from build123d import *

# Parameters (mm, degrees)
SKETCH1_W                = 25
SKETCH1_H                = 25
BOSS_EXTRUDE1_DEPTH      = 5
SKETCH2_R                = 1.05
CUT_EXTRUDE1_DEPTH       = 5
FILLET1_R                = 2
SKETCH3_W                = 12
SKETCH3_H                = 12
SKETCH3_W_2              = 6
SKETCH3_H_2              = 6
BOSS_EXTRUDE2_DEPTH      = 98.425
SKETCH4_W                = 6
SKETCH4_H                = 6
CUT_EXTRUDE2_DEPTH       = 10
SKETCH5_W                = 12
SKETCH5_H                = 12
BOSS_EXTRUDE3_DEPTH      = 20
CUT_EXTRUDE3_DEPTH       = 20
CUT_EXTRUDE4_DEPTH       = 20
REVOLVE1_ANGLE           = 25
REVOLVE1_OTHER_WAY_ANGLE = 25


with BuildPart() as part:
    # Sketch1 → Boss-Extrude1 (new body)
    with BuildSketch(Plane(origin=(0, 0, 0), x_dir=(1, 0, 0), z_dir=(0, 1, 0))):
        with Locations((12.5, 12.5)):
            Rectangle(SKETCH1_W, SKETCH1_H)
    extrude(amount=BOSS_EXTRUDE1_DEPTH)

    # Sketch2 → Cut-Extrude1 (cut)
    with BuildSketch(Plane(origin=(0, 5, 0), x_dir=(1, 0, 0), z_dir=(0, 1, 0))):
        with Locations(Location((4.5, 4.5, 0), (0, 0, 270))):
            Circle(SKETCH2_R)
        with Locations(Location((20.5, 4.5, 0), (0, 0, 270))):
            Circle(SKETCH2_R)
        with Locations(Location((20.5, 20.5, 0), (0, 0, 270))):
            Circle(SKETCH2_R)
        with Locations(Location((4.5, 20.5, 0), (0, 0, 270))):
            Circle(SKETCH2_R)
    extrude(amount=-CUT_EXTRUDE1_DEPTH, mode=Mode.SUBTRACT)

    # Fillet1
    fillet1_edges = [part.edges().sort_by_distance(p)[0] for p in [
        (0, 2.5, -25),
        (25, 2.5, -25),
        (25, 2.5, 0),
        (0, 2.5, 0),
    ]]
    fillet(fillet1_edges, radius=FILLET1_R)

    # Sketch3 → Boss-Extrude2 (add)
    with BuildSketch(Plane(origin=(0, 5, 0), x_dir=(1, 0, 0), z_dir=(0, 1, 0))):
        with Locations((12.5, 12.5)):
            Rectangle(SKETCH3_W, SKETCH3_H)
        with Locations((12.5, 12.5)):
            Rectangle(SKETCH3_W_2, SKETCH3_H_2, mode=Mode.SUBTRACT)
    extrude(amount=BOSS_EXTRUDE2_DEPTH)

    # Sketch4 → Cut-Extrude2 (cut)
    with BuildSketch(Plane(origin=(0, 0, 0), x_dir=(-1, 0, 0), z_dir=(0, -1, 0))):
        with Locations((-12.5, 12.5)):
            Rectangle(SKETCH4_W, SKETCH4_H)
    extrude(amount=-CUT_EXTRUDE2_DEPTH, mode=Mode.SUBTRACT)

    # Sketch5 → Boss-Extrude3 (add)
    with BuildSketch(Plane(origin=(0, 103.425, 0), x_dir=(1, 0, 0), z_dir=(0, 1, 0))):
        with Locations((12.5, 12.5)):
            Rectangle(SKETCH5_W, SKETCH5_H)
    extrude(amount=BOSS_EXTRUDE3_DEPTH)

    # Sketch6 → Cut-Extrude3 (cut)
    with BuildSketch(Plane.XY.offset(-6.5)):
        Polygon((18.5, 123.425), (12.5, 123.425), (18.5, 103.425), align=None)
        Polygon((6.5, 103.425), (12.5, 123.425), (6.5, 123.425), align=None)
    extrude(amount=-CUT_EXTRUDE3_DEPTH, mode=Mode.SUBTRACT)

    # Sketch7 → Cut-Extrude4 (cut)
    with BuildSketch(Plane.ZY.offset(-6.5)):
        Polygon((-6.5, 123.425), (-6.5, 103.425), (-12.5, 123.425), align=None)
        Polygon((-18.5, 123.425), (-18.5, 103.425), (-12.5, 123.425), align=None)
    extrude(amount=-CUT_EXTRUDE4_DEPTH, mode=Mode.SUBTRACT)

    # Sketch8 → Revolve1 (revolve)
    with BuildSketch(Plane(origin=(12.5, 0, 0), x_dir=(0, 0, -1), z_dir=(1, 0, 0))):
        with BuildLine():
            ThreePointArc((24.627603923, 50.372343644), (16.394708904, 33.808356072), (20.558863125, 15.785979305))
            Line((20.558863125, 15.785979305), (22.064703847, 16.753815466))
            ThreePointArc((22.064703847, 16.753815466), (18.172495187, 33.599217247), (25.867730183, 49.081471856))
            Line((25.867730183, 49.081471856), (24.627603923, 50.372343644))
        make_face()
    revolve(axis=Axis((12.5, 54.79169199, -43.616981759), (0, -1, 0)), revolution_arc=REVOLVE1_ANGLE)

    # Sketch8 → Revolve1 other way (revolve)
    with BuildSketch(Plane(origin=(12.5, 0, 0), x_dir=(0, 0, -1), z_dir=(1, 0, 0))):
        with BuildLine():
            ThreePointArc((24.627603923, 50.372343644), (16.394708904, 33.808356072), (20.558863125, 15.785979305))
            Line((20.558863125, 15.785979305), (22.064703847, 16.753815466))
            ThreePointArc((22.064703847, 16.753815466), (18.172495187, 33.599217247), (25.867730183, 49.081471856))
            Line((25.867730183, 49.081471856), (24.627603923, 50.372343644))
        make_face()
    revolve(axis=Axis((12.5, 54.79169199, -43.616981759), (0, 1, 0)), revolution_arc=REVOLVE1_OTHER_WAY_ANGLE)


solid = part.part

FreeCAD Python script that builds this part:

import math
import FreeCAD as App
import Part
import Sketcher
from FreeCAD import Vector
Q = App.Units.Quantity


def edges_at(feature, points):
    """Names of the edges that pass closest to the given points."""
    edges = feature.Shape.Edges
    near = lambda p: min(range(len(edges)), key=lambda i: edges[i].distToShape(Part.Vertex(*p))[0])
    return sorted({f"Edge{near(p) + 1}" for p in points})

doc = App.newDocument("Part")
body = doc.addObject("PartDesign::Body", "Body")

# Sketch on XZ plane
sketch1 = doc.addObject("Sketcher::SketchObject", "Sketch")
body.addObject(sketch1)
sketch1.AttachmentSupport = (doc.XZ_Plane, [""])
sketch1.MapMode = "FlatFace"
sketch1.addGeometry([
    Part.LineSegment(Vector(0, -25, 0), Vector(0, 0, 0)),
    Part.LineSegment(Vector(0, 0, 0), Vector(25, 0, 0)),
    Part.LineSegment(Vector(25, 0, 0), Vector(25, -25, 0)),
    Part.LineSegment(Vector(25, -25, 0), Vector(0, -25, 0)),
], False)
sketch1.addConstraint([
    Sketcher.Constraint("Coincident", 0, 2, 1, 1),
    Sketcher.Constraint("Coincident", 1, 2, 2, 1),
    Sketcher.Constraint("Coincident", 2, 2, 3, 1),
    Sketcher.Constraint("Coincident", 3, 2, 0, 1),
    Sketcher.Constraint("Vertical", 0),
    Sketcher.Constraint("Horizontal", 1),
    Sketcher.Constraint("Vertical", 2),
    Sketcher.Constraint("Horizontal", 3),
    Sketcher.Constraint("Coincident", 0, 2, -1, 1),
    Sketcher.Constraint("Equal", 3, 0),
    Sketcher.Constraint("DistanceX", 1, 1, 1, 2, Q("25 mm")),
])
pad1 = doc.addObject("PartDesign::Pad", "Pad")
body.addObject(pad1)
pad1.Profile = sketch1
pad1.Length = 5
pad1.Reversed = True

# Sketch on XZ plane
sketch2 = doc.addObject("Sketcher::SketchObject", "Sketch001")
body.addObject(sketch2)
sketch2.AttachmentSupport = (doc.XZ_Plane, [""])
sketch2.MapMode = "FlatFace"
sketch2.AttachmentOffset = App.Placement(Vector(0, 0, -5), App.Rotation())
sketch2.addGeometry([
    Part.Circle(Vector(4.5, -4.5, 0), Vector(0, 0, 1), 1.1),
    Part.Circle(Vector(20.5, -4.5, 0), Vector(0, 0, 1), 1.1),
    Part.Circle(Vector(20.5, -20.5, 0), Vector(0, 0, 1), 1.1),
    Part.Circle(Vector(4.5, -20.5, 0), Vector(0, 0, 1), 1.1),
], False)
sketch2.addConstraint([
    Sketcher.Constraint("Equal", 0, 1),
    Sketcher.Constraint("Equal", 1, 2),
    Sketcher.Constraint("Equal", 2, 3),
    Sketcher.Constraint("Horizontal", 0, 3, 1, 3),
    Sketcher.Constraint("Horizontal", 2, 3, 3, 3),
    Sketcher.Constraint("Vertical", 1, 3, 2, 3),
    Sketcher.Constraint("Vertical", 0, 3, 3, 3),
    Sketcher.Constraint("Diameter", 0, Q("2.1 mm")),
    Sketcher.Constraint("DistanceX", 0, 3, 1, 3, Q("16 mm")),
    Sketcher.Constraint("DistanceY", 2, 3, 1, 3, Q("16 mm")),
    Sketcher.Constraint("DistanceX", -1, 1, 0, 3, Q("4.5 mm")),
    Sketcher.Constraint("DistanceY", 0, 3, -1, 1, Q("4.5 mm")),
])
pocket1 = doc.addObject("PartDesign::Pocket", "Pocket")
body.addObject(pocket1)
pocket1.Profile = sketch2
pocket1.Length = 5
pocket1.Reversed = True
doc.recompute()

fillet = doc.addObject("PartDesign::Fillet", "Fillet")
body.addObject(fillet)
fillet.Base = (pocket1, edges_at(pocket1, [
    (0, 2.5, -25),
    (25, 2.5, -25),
    (25, 2.5, 0),
    (0, 2.5, 0),
]))
fillet.Radius = 2

# Sketch on XZ plane
sketch3 = doc.addObject("Sketcher::SketchObject", "Sketch002")
body.addObject(sketch3)
sketch3.AttachmentSupport = (doc.XZ_Plane, [""])
sketch3.MapMode = "FlatFace"
sketch3.AttachmentOffset = App.Placement(Vector(0, 0, -5), App.Rotation())
sketch3.addGeometry([
    Part.LineSegment(Vector(6, -18, 0), Vector(6, -6, 0)),  # 0
    Part.LineSegment(Vector(6, -6, 0), Vector(18, -6, 0)),  # 1
    Part.LineSegment(Vector(18, -6, 0), Vector(18, -18, 0)),  # 2
    Part.LineSegment(Vector(18, -18, 0), Vector(6, -18, 0)),  # 3
    Part.LineSegment(Vector(16, -10, 0), Vector(10, -10, 0)),  # 4
    Part.LineSegment(Vector(10, -10, 0), Vector(10, -16, 0)),  # 5
    Part.LineSegment(Vector(10, -16, 0), Vector(16, -16, 0)),  # 6
    Part.LineSegment(Vector(16, -16, 0), Vector(16, -10, 0)),  # 7
], False)
sketch3.addConstraint([
    Sketcher.Constraint("Coincident", 0, 2, 1, 1),
    Sketcher.Constraint("Coincident", 1, 2, 2, 1),
    Sketcher.Constraint("Coincident", 2, 2, 3, 1),
    Sketcher.Constraint("Coincident", 3, 2, 0, 1),
    Sketcher.Constraint("Coincident", 4, 2, 5, 1),
    Sketcher.Constraint("Coincident", 5, 2, 6, 1),
    Sketcher.Constraint("Coincident", 6, 2, 7, 1),
    Sketcher.Constraint("Coincident", 7, 2, 4, 1),
    Sketcher.Constraint("Vertical", 0),
    Sketcher.Constraint("Horizontal", 1),
    Sketcher.Constraint("Vertical", 2),
    Sketcher.Constraint("Horizontal", 3),
    Sketcher.Constraint("Horizontal", 4),
    Sketcher.Constraint("Vertical", 5),
    Sketcher.Constraint("Horizontal", 6),
    Sketcher.Constraint("Vertical", 7),
    Sketcher.Constraint("Equal", 3, 0),
    Sketcher.Constraint("Equal", 6, 5),
    Sketcher.Constraint("DistanceX", 1, 1, 1, 2, Q("12 mm")),
    Sketcher.Constraint("DistanceX", 4, 2, 4, 1, Q("6 mm")),
    Sketcher.Constraint("DistanceX", 0, 2, 4, 2, Q("3 mm")),
    Sketcher.Constraint("DistanceY", 4, 2, 0, 2, Q("3 mm")),
    Sketcher.Constraint("DistanceX", -1, 1, 0, 2, Q("6.5 mm")),
    Sketcher.Constraint("DistanceY", 0, 2, -1, 1, Q("6.5 mm")),
])
pad2 = doc.addObject("PartDesign::Pad", "Pad001")
body.addObject(pad2)
pad2.Profile = sketch3
pad2.Length = 98.425
pad2.Reversed = True

# Sketch on XZ plane
sketch4 = doc.addObject("Sketcher::SketchObject", "Sketch003")
body.addObject(sketch4)
sketch4.AttachmentSupport = (doc.XZ_Plane, [""])
sketch4.MapMode = "FlatFace"
sketch4.addGeometry([
    Part.LineSegment(Vector(16, -16, 0), Vector(16, -10, 0)),
    Part.LineSegment(Vector(16, -10, 0), Vector(10, -10, 0)),
    Part.LineSegment(Vector(10, -10, 0), Vector(10, -16, 0)),
    Part.LineSegment(Vector(10, -16, 0), Vector(16, -16, 0)),
], False)
sketch4.addConstraint([
    Sketcher.Constraint("Coincident", 0, 2, 1, 1),
    Sketcher.Constraint("Coincident", 1, 2, 2, 1),
    Sketcher.Constraint("Coincident", 2, 2, 3, 1),
    Sketcher.Constraint("Coincident", 3, 2, 0, 1),
    Sketcher.Constraint("Vertical", 0),
    Sketcher.Constraint("Horizontal", 1),
    Sketcher.Constraint("Vertical", 2),
    Sketcher.Constraint("Horizontal", 3),
    Sketcher.Constraint("Equal", 3, 0),
    Sketcher.Constraint("DistanceX", 1, 2, 1, 1, Q("6 mm")),
    Sketcher.Constraint("DistanceX", -1, 1, 0, 2, Q("15.5 mm")),
    Sketcher.Constraint("DistanceY", 0, 2, -1, 1, Q("9.5 mm")),
])
pocket2 = doc.addObject("PartDesign::Pocket", "Pocket001")
body.addObject(pocket2)
pocket2.Profile = sketch4
pocket2.Length = 10

# Sketch on XZ plane
sketch5 = doc.addObject("Sketcher::SketchObject", "Sketch004")
body.addObject(sketch5)
sketch5.AttachmentSupport = (doc.XZ_Plane, [""])
sketch5.MapMode = "FlatFace"
sketch5.AttachmentOffset = App.Placement(Vector(0, 0, -103.425), App.Rotation())
sketch5.addGeometry([
    Part.LineSegment(Vector(6, -18, 0), Vector(6, -6, 0)),
    Part.LineSegment(Vector(6, -6, 0), Vector(18, -6, 0)),
    Part.LineSegment(Vector(18, -6, 0), Vector(18, -18, 0)),
    Part.LineSegment(Vector(18, -18, 0), Vector(6, -18, 0)),
], False)
sketch5.addConstraint([
    Sketcher.Constraint("Coincident", 0, 2, 1, 1),
    Sketcher.Constraint("Coincident", 1, 2, 2, 1),
    Sketcher.Constraint("Coincident", 2, 2, 3, 1),
    Sketcher.Constraint("Coincident", 3, 2, 0, 1),
    Sketcher.Constraint("Vertical", 0),
    Sketcher.Constraint("Horizontal", 1),
    Sketcher.Constraint("Vertical", 2),
    Sketcher.Constraint("Horizontal", 3),
    Sketcher.Constraint("Equal", 3, 0),
    Sketcher.Constraint("DistanceX", 1, 1, 1, 2, Q("12 mm")),
    Sketcher.Constraint("DistanceX", -1, 1, 0, 2, Q("6.5 mm")),
    Sketcher.Constraint("DistanceY", 0, 2, -1, 1, Q("6.5 mm")),
])
pad3 = doc.addObject("PartDesign::Pad", "Pad002")
body.addObject(pad3)
pad3.Profile = sketch5
pad3.Length = 20
pad3.Reversed = True

# Sketch on XY plane
sketch6 = doc.addObject("Sketcher::SketchObject", "Sketch005")
body.addObject(sketch6)
sketch6.AttachmentSupport = (doc.XY_Plane, [""])
sketch6.MapMode = "FlatFace"
sketch6.AttachmentOffset = App.Placement(Vector(0, 0, -6.5), App.Rotation())
sketch6.addGeometry([
    Part.LineSegment(Vector(18, 123, 0), Vector(12, 123, 0)),  # 0
    Part.LineSegment(Vector(12, 123, 0), Vector(18, 103, 0)),  # 1
    Part.LineSegment(Vector(18, 103, 0), Vector(18, 123, 0)),  # 2
    Part.LineSegment(Vector(6, 103, 0), Vector(12, 123, 0)),  # 3
    Part.LineSegment(Vector(12, 123, 0), Vector(6, 123, 0)),  # 4
    Part.LineSegment(Vector(6, 123, 0), Vector(6, 103, 0)),  # 5
], False)
sketch6.addConstraint([
    Sketcher.Constraint("Coincident", 0, 2, 1, 1),
    Sketcher.Constraint("Coincident", 1, 2, 2, 1),
    Sketcher.Constraint("Coincident", 2, 2, 0, 1),
    Sketcher.Constraint("Coincident", 3, 2, 4, 1),
    Sketcher.Constraint("Coincident", 4, 2, 5, 1),
    Sketcher.Constraint("Coincident", 5, 2, 3, 1),
    Sketcher.Constraint("Horizontal", 0),
    Sketcher.Constraint("Vertical", 2),
    Sketcher.Constraint("Horizontal", 4),
    Sketcher.Constraint("Vertical", 5),
    Sketcher.Constraint("Coincident", 3, 2, 0, 2),
    Sketcher.Constraint("Horizontal", 1, 2, 5, 2),
    Sketcher.Constraint("Equal", 0, 4),
    Sketcher.Constraint("DistanceX", 0, 2, 0, 1, Q("6 mm")),
    Sketcher.Constraint("DistanceY", 2, 1, 2, 2, Q("20 mm")),
    Sketcher.Constraint("DistanceX", -1, 1, 0, 2, Q("12.5 mm")),
    Sketcher.Constraint("DistanceY", -1, 1, 0, 2, Q("123.425 mm")),
])
pocket3 = doc.addObject("PartDesign::Pocket", "Pocket002")
body.addObject(pocket3)
pocket3.Profile = sketch6
pocket3.Length = 20

# Sketch on YZ plane
sketch7 = doc.addObject("Sketcher::SketchObject", "Sketch006")
body.addObject(sketch7)
sketch7.AttachmentSupport = (doc.YZ_Plane, [""])
sketch7.MapMode = "FlatFace"
sketch7.AttachmentOffset = App.Placement(Vector(0, 0, 6.5), App.Rotation())
sketch7.addGeometry([
    Part.LineSegment(Vector(103, -6, 0), Vector(123, -6, 0)),  # 0
    Part.LineSegment(Vector(123, -6, 0), Vector(123, -12, 0)),  # 1
    Part.LineSegment(Vector(123, -12, 0), Vector(103, -6, 0)),  # 2
    Part.LineSegment(Vector(123, -18, 0), Vector(103, -18, 0)),  # 3
    Part.LineSegment(Vector(103, -18, 0), Vector(123, -12, 0)),  # 4
    Part.LineSegment(Vector(123, -12, 0), Vector(123, -18, 0)),  # 5
], False)
sketch7.addConstraint([
    Sketcher.Constraint("Coincident", 0, 2, 1, 1),
    Sketcher.Constraint("Coincident", 1, 2, 2, 1),
    Sketcher.Constraint("Coincident", 2, 2, 0, 1),
    Sketcher.Constraint("Coincident", 3, 2, 4, 1),
    Sketcher.Constraint("Coincident", 4, 2, 5, 1),
    Sketcher.Constraint("Coincident", 5, 2, 3, 1),
    Sketcher.Constraint("Horizontal", 0),
    Sketcher.Constraint("Vertical", 1),
    Sketcher.Constraint("Horizontal", 3),
    Sketcher.Constraint("Vertical", 5),
    Sketcher.Constraint("Coincident", 4, 2, 1, 2),
    Sketcher.Constraint("Vertical", 2, 2, 3, 2),
    Sketcher.Constraint("Equal", 1, 5),
    Sketcher.Constraint("DistanceX", 0, 1, 0, 2, Q("20 mm")),
    Sketcher.Constraint("DistanceY", 1, 2, 1, 1, Q("6 mm")),
    Sketcher.Constraint("DistanceY", 0, 2, -1, 1, Q("6.5 mm")),
    Sketcher.Constraint("DistanceX", -1, 1, 0, 2, Q("123.425 mm")),
])
pocket4 = doc.addObject("PartDesign::Pocket", "Pocket003")
body.addObject(pocket4)
pocket4.Profile = sketch7
pocket4.Length = 20
pocket4.Reversed = True

# Sketch on YZ plane
sketch8 = doc.addObject("Sketcher::SketchObject", "Sketch007")
body.addObject(sketch8)
sketch8.AttachmentSupport = (doc.YZ_Plane, [""])
sketch8.MapMode = "FlatFace"
sketch8.AttachmentOffset = App.Placement(Vector(0, 0, 12.5), App.Rotation())
sketch8.addGeometry([
    Part.ArcOfCircle(Part.Circle(Vector(30.6, -43.6, 0), Vector(0, 0, 1), 27.4), math.radians(44), math.radians(123)),
    Part.LineSegment(Vector(15.8, -20.6, 0), Vector(16.8, -22.1, 0)),
    Part.ArcOfCircle(Part.Circle(Vector(30.6, -43.6, 0), Vector(0, 0, 1), 25.6), math.radians(44), math.radians(123)),
    Part.LineSegment(Vector(49.1, -25.9, 0), Vector(50.4, -24.6, 0)),
], False)
sketch8.addGeometry(Part.LineSegment(Vector(50.4, -43.6, 0), Vector(15.8, -43.6, 0)), True)  # axis
sketch8.addConstraint([
    Sketcher.Constraint("Coincident", 0, 2, 1, 1),
    Sketcher.Constraint("Coincident", 1, 2, 2, 2),
    Sketcher.Constraint("Coincident", 2, 1, 3, 1),
    Sketcher.Constraint("Coincident", 3, 2, 0, 1),
    Sketcher.Constraint("Horizontal", 4),
    Sketcher.Constraint("Coincident", 2, 3, 0, 3),
    Sketcher.Constraint("Horizontal", 2, 3, 4, 1),
    Sketcher.Constraint("Vertical", 3, 2, 4, 1),
    Sketcher.Constraint("Vertical", 0, 2, 4, 2),
    Sketcher.Constraint("Radius", 0, Q("27.409993 mm")),
    Sketcher.Constraint("Radius", 2, Q("25.619947 mm")),
    Sketcher.Constraint("DistanceY", 3, 2, 1, 2, Q("2.5629 mm")),
    Sketcher.Constraint("DistanceX", 4, 2, 4, 1, Q("34.586364 mm")),
    Sketcher.Constraint("DistanceY", 0, 3, -1, 1, Q("43.616982 mm")),
    Sketcher.Constraint("DistanceX", -1, 1, 0, 2, Q("15.785979 mm")),
    Sketcher.Constraint("DistanceX", -1, 1, 2, 1, Q("49.081472 mm")),
    Sketcher.Constraint("DistanceY", 2, 1, -1, 1, Q("25.86773 mm")),
])
revolution = doc.addObject("PartDesign::Revolution", "Revolution")
body.addObject(revolution)
revolution.Profile = sketch8
revolution.ReferenceAxis = (sketch8, ["Axis0"])
revolution.Angle = 25

# Sketch on YZ plane
sketch9 = doc.addObject("Sketcher::SketchObject", "Sketch008")
body.addObject(sketch9)
sketch9.AttachmentSupport = (doc.YZ_Plane, [""])
sketch9.MapMode = "FlatFace"
sketch9.AttachmentOffset = App.Placement(Vector(0, 0, 12.5), App.Rotation())
sketch9.addGeometry([
    Part.ArcOfCircle(Part.Circle(Vector(30.6, -43.6, 0), Vector(0, 0, 1), 27.4), math.radians(44), math.radians(123)),
    Part.LineSegment(Vector(15.8, -20.6, 0), Vector(16.8, -22.1, 0)),
    Part.ArcOfCircle(Part.Circle(Vector(30.6, -43.6, 0), Vector(0, 0, 1), 25.6), math.radians(44), math.radians(123)),
    Part.LineSegment(Vector(49.1, -25.9, 0), Vector(50.4, -24.6, 0)),
], False)
sketch9.addGeometry(Part.LineSegment(Vector(15.8, -43.6, 0), Vector(50.4, -43.6, 0)), True)  # axis
sketch9.addConstraint([
    Sketcher.Constraint("Coincident", 0, 2, 1, 1),
    Sketcher.Constraint("Coincident", 1, 2, 2, 2),
    Sketcher.Constraint("Coincident", 2, 1, 3, 1),
    Sketcher.Constraint("Coincident", 3, 2, 0, 1),
    Sketcher.Constraint("Horizontal", 4),
    Sketcher.Constraint("Coincident", 2, 3, 0, 3),
    Sketcher.Constraint("Horizontal", 2, 3, 4, 1),
    Sketcher.Constraint("Vertical", 0, 2, 4, 1),
    Sketcher.Constraint("Vertical", 3, 2, 4, 2),
    Sketcher.Constraint("Radius", 0, Q("27.409993 mm")),
    Sketcher.Constraint("Radius", 2, Q("25.619947 mm")),
    Sketcher.Constraint("DistanceY", 3, 2, 1, 2, Q("2.5629 mm")),
    Sketcher.Constraint("DistanceX", 4, 1, 4, 2, Q("34.586364 mm")),
    Sketcher.Constraint("DistanceY", 0, 3, -1, 1, Q("43.616982 mm")),
    Sketcher.Constraint("DistanceX", -1, 1, 0, 2, Q("15.785979 mm")),
    Sketcher.Constraint("DistanceX", -1, 1, 2, 1, Q("49.081472 mm")),
    Sketcher.Constraint("DistanceY", 2, 1, -1, 1, Q("25.86773 mm")),
])
revolution2 = doc.addObject("PartDesign::Revolution", "Revolution001")
body.addObject(revolution2)
revolution2.Profile = sketch9
revolution2.ReferenceAxis = (sketch9, ["Axis0"])
revolution2.Angle = 25

doc.recompute()
